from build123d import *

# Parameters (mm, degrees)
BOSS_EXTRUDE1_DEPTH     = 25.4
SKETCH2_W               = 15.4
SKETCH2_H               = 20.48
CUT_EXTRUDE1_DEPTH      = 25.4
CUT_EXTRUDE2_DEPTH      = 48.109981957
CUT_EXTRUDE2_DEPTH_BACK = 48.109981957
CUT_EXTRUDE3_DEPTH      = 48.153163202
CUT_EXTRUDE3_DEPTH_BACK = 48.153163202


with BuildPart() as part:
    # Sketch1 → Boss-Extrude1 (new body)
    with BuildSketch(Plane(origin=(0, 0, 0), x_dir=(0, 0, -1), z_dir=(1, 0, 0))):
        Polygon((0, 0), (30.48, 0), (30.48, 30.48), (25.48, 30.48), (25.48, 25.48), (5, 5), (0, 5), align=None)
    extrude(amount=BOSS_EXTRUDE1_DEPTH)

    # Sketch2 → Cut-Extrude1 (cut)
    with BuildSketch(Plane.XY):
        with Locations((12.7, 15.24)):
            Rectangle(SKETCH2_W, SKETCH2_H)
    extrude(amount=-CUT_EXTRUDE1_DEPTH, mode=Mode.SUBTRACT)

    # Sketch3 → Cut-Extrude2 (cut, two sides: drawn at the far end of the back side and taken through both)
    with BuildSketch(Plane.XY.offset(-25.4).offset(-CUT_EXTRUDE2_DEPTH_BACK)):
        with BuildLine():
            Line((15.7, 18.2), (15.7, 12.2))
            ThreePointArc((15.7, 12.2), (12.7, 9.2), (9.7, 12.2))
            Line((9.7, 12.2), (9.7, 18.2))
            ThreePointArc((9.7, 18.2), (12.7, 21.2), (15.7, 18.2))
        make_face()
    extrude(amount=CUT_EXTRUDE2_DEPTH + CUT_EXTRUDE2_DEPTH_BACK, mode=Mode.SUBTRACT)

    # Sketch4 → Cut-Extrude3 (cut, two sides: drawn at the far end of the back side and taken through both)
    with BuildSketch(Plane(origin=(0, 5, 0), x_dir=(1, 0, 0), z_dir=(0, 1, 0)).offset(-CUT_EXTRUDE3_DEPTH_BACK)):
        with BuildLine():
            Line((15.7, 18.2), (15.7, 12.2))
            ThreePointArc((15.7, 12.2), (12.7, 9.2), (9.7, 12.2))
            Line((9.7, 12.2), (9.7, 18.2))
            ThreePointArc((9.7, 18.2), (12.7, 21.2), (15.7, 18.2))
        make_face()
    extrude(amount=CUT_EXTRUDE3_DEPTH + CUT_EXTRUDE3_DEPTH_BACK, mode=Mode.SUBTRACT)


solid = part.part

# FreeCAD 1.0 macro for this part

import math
import FreeCAD as App
import Part
import Sketcher
from FreeCAD import Vector
Q = App.Units.Quantity


def add_polygon(sketch, points):
    """Adds a closed chain of lines whose ends are joined by coincident constraints."""
    first, n = sketch.GeometryCount, len(points)
    for a, b in zip(points, points[1:] + points[:1]):
        sketch.addGeometry(Part.LineSegment(App.Vector(*a, 0), App.Vector(*b, 0)), False)
    for i in range(n):
        sketch.addConstraint(Sketcher.Constraint("Coincident", first + i, 2, first + (i + 1) % n, 1))

doc = App.newDocument("Part")
body = doc.addObject("PartDesign::Body", "Body")

# Sketch on YZ plane
sketch1 = body.newObject("Sketcher::SketchObject", "Sketch")
sketch1.AttachmentSupport = (doc.getObject("YZ_Plane"), [""])
sketch1.MapMode = "FlatFace"
add_polygon(sketch1, [(0, 0), (0, -30), (30, -30), (30, -25), (25, -25), (5, -5), (5, 0)])  # lines 0-6
sketch1.addConstraint([
    Sketcher.Constraint("Vertical", 0),
    Sketcher.Constraint("Horizontal", 1),
    Sketcher.Constraint("Vertical", 2),
    Sketcher.Constraint("Horizontal", 3),
    Sketcher.Constraint("Vertical", 5),
    Sketcher.Constraint("Horizontal", 6),
    Sketcher.Constraint("Coincident", 6, 2, -1, 1),
    Sketcher.Constraint("Equal", 3, 6),
    Sketcher.Constraint("Equal", 1, 0),
    Sketcher.Constraint("Equal", 6, 2),
    Sketcher.Constraint("Equal", 2, 5),
    Sketcher.Constraint("DistanceX", 3, 2, 3, 1, Q("5 mm")),
    Sketcher.Constraint("DistanceX", 1, 1, 1, 2, Q("30.48 mm")),
])
pad1 = body.newObject("PartDesign::Pad", "Pad")
pad1.Profile = sketch1
pad1.Length = 25.4

# Sketch on XY plane
sketch2 = body.newObject("Sketcher::SketchObject", "Sketch001")
sketch2.AttachmentSupport = (doc.getObject("XY_Plane"), [""])
sketch2.MapMode = "FlatFace"
add_polygon(sketch2, [(5, 25), (5, 5), (20, 5), (20, 25)])  # lines 0-3
sketch2.addConstraint([
    Sketcher.Constraint("Vertical", 0),
    Sketcher.Constraint("Horizontal", 1),
    Sketcher.Constraint("Vertical", 2),
    Sketcher.Constraint("Horizontal", 3),
    Sketcher.Constraint("DistanceX", 1, 1, 1, 2, Q("15.4 mm")),
    Sketcher.Constraint("DistanceX", -1, 1, 0, 2, Q("5 mm")),
    Sketcher.Constraint("DistanceY", -1, 1, 0, 2, Q("5 mm")),
    Sketcher.Constraint("DistanceY", 0, 2, 0, 1, Q("20.48 mm")),
])
pocket1 = body.newObject("PartDesign::Pocket", "Pocket")
pocket1.Profile = sketch2
pocket1.Length = 25.4

# Sketch on XY plane
sketch3 = body.newObject("Sketcher::SketchObject", "Sketch002")
sketch3.AttachmentSupport = (doc.getObject("XY_Plane"), [""])
sketch3.MapMode = "FlatFace"
sketch3.AttachmentOffset = App.Placement(Vector(0, 0, -25.4), App.Rotation())
sketch3.addGeometry([
    Part.LineSegment(Vector(15.7, 12.2, 0), Vector(15.7, 18.2, 0)),
    Part.ArcOfCircle(Part.Circle(Vector(12.7, 18.2, 0), Vector(0, 0, 1), 3), math.radians(0), math.radians(180)),
    Part.LineSegment(Vector(9.7, 18.2, 0), Vector(9.7, 12.2, 0)),
    Part.ArcOfCircle(Part.Circle(Vector(12.7, 12.2, 0), Vector(0, 0, 1), 3), math.radians(180), math.radians(360)),
], False)
sketch3.addConstraint([
    Sketcher.Constraint("Tangent", 0, 2, 1, 1),
    Sketcher.Constraint("Tangent", 1, 2, 2, 1),
    Sketcher.Constraint("Tangent", 2, 2, 3, 1),
    Sketcher.Constraint("Tangent", 3, 2, 0, 1),
    Sketcher.Constraint("Vertical", 0),
    Sketcher.Constraint("Vertical", 2),
    Sketcher.Constraint("Radius", 1, Q("3 mm")),
    Sketcher.Constraint("DistanceY", 0, 1, 0, 2, Q("6 mm")),
    Sketcher.Constraint("DistanceX", -1, 1, 1, 3, Q("12.7 mm")),
    Sketcher.Constraint("DistanceY", -1, 1, 1, 3, Q("18.2 mm")),
])
pocket2 = body.newObject("PartDesign::Pocket", "Pocket001")
pocket2.Profile = sketch3
pocket2.Type = "ThroughAll"
pocket2.Midplane = True

# Sketch on XZ plane
sketch4 = body.newObject("Sketcher::SketchObject", "Sketch003")
sketch4.AttachmentSupport = (doc.getObject("XZ_Plane"), [""])
sketch4.MapMode = "FlatFace"
sketch4.AttachmentOffset = App.Placement(Vector(0, 0, -5), App.Rotation())
sketch4.addGeometry([
    Part.LineSegment(Vector(15.7, -12.2, 0), Vector(15.7, -18.2, 0)),
    Part.ArcOfCircle(Part.Circle(Vector(12.7, -18.2, 0), Vector(0, 0, 1), 3), math.radians(180), math.radians(360)),
    Part.LineSegment(Vector(9.7, -18.2, 0), Vector(9.7, -12.2, 0)),
    Part.ArcOfCircle(Part.Circle(Vector(12.7, -12.2, 0), Vector(0, 0, 1), 3), math.radians(0), math.radians(180)),
], False)
sketch4.addConstraint([
    Sketcher.Constraint("Tangent", 0, 2, 1, 2),
    Sketcher.Constraint("Tangent", 1, 1, 2, 1),
    Sketcher.Constraint("Tangent", 2, 2, 3, 2),
    Sketcher.Constraint("Tangent", 3, 1, 0, 1),
    Sketcher.Constraint("Vertical", 0),
    Sketcher.Constraint("Vertical", 2),
    Sketcher.Constraint("Radius", 1, Q("3 mm")),
    Sketcher.Constraint("DistanceY", 0, 2, 0, 1, Q("6 mm")),
    Sketcher.Constraint("DistanceX", -1, 1, 1, 3, Q("12.7 mm")),
    Sketcher.Constraint("DistanceY", 1, 3, -1, 1, Q("18.2 mm")),
])
pocket3 = body.newObject("PartDesign::Pocket", "Pocket002")
pocket3.Profile = sketch4
pocket3.Type = "ThroughAll"
pocket3.Midplane = True

doc.recompute()
